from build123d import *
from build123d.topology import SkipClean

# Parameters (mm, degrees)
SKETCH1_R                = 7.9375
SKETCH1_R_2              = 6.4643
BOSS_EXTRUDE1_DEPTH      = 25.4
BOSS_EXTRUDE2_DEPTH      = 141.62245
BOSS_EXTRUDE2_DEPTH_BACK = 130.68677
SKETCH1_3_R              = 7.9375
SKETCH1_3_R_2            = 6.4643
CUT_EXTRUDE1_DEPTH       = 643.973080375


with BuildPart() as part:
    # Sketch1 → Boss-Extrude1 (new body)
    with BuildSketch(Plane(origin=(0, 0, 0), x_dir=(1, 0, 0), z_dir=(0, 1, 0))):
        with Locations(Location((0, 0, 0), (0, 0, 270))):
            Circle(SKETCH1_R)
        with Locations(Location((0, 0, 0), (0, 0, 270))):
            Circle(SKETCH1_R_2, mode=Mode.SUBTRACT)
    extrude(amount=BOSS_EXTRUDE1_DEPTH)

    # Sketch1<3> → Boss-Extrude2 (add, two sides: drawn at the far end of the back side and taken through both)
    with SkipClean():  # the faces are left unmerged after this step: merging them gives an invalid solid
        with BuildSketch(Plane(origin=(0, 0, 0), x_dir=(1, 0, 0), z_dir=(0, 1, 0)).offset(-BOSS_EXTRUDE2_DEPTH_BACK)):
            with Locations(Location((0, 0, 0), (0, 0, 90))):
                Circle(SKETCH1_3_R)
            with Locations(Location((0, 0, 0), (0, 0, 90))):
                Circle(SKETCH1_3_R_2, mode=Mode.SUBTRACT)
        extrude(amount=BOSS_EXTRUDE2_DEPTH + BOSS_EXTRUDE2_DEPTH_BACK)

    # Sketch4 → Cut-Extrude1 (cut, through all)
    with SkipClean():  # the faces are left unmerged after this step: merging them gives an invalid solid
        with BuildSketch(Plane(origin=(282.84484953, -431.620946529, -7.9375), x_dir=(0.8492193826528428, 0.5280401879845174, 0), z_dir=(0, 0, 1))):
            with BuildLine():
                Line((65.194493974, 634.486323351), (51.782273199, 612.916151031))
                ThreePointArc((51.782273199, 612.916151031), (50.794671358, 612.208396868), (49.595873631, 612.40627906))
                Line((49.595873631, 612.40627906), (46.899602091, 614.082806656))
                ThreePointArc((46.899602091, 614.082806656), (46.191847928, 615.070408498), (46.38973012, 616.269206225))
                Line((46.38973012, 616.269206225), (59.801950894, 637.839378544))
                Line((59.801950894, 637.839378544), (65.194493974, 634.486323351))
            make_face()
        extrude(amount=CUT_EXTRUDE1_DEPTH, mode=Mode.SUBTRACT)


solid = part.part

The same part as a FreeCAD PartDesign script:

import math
import FreeCAD as App
import Part
import Sketcher

V = App.Vector
Q = App.Units.Quantity

doc = App.newDocument("Part")
body = doc.addObject("PartDesign::Body", "Body")

# Sketch on XZ plane
sketch1 = body.newObject("Sketcher::SketchObject", "Sketch")
sketch1.AttachmentSupport = (doc.getObject("XZ_Plane"), [""])
sketch1.MapMode = "FlatFace"
sketch1.addGeometry(Part.Circle(V(0, 0, 0), V(0, 0, 1), 7.9375), False)
sketch1.addGeometry(Part.Circle(V(0, 0, 0), V(0, 0, 1), 6.4643), False)
sketch1.addConstraint(Sketcher.Constraint("Coincident", 0, 3, -1, 1))
sketch1.addConstraint(Sketcher.Constraint("Coincident", 1, 3, -1, 1))
sketch1.addConstraint(Sketcher.Constraint("Diameter", 0, Q("0.625 in")))
sketch1.addConstraint(Sketcher.Constraint("Diameter", 1, Q("0.509 in")))
pad1 = body.newObject("PartDesign::Pad", "Pad")
pad1.Profile = sketch1
pad1.Length = Q("1 in")
pad1.Reversed = True

# Sketch on XZ plane
sketch2 = body.newObject("Sketcher::SketchObject", "Sketch001")
sketch2.AttachmentSupport = (doc.getObject("XZ_Plane"), [""])
sketch2.MapMode = "FlatFace"
sketch2.addGeometry(Part.Circle(V(0, 0, 0), V(0, 0, 1), 7.9375), False)
sketch2.addGeometry(Part.Circle(V(0, 0, 0), V(0, 0, 1), 6.4643), False)
sketch2.addConstraint(Sketcher.Constraint("Coincident", 0, 3, -1, 1))
sketch2.addConstraint(Sketcher.Constraint("Coincident", 1, 3, -1, 1))
sketch2.addConstraint(Sketcher.Constraint("Diameter", 0, Q("0.625 in")))
sketch2.addConstraint(Sketcher.Constraint("Diameter", 1, Q("0.509 in")))
pad2 = body.newObject("PartDesign::Pad", "Pad001")
pad2.Profile = sketch2
pad2.Type = "TwoLengths"
pad2.Length = 141.62245
pad2.Length2 = 130.68677
pad2.Reversed = True

# Sketch on XY plane
sketch3 = body.newObject("Sketcher::SketchObject", "Sketch002")
sketch3.AttachmentSupport = (doc.getObject("XY_Plane"), [""])
sketch3.MapMode = "FlatFace"
sketch3.AttachmentOffset = App.Placement(V(0, 0, -0.3125 * 25.4), App.Rotation())
sketch3.addGeometry(Part.LineSegment(V(3.175, 116.22245, 0), V(3.175, 141.62245, 0)), False)
sketch3.addGeometry(Part.LineSegment(V(3.175, 141.62245, 0), V(-3.175, 141.62245, 0)), False)
sketch3.addGeometry(Part.LineSegment(V(-3.175, 141.62245, 0), V(-3.175, 116.22245, 0)), False)
sketch3.addGeometry(Part.ArcOfCircle(Part.Circle(V(-1.5875, 116.22245, 0), V(0, 0, 1), 1.5875), math.radians(180), math.radians(270)), False)
sketch3.addGeometry(Part.LineSegment(V(-1.5875, 114.63495, 0), V(1.5875, 114.63495, 0)), False)
sketch3.addGeometry(Part.ArcOfCircle(Part.Circle(V(1.5875, 116.22245, 0), V(0, 0, 1), 1.5875), math.radians(-90), math.radians(0)), False)
sketch3.addConstraint(Sketcher.Constraint("Coincident", 0, 2, 1, 1))
sketch3.addConstraint(Sketcher.Constraint("Coincident", 1, 2, 2, 1))
sketch3.addConstraint(Sketcher.Constraint("Tangent", 2, 2, 3, 1))
sketch3.addConstraint(Sketcher.Constraint("Tangent", 3, 2, 4, 1))
sketch3.addConstraint(Sketcher.Constraint("Tangent", 4, 2, 5, 1))
sketch3.addConstraint(Sketcher.Constraint("Tangent", 5, 2, 0, 1))
sketch3.addConstraint(Sketcher.Constraint("Vertical", 0))
sketch3.addConstraint(Sketcher.Constraint("Horizontal", 1))
sketch3.addConstraint(Sketcher.Constraint("Vertical", 2))
sketch3.addConstraint(Sketcher.Constraint("Horizontal", 4))
sketch3.addConstraint(Sketcher.Constraint("Equal", 3, 5))
sketch3.addConstraint(Sketcher.Constraint("DistanceY", 0, 1, 0, 2, Q("1 in")))
sketch3.addConstraint(Sketcher.Constraint("Radius", 3, Q("0.0625 in")))
sketch3.addConstraint(Sketcher.Constraint("DistanceX", 1, 2, 1, 1, Q("0.25 in")))
sketch3.addConstraint(Sketcher.Constraint("DistanceX", 3, 3, -1, 1, Q("0.0625 in")))
sketch3.addConstraint(Sketcher.Constraint("DistanceY", -1, 1, 3, 3, Q("116.22245 mm")))
pocket1 = body.newObject("PartDesign::Pocket", "Pocket")
pocket1.Profile = sketch3
pocket1.Type = "ThroughAll"
pocket1.Reversed = True

doc.recompute()
